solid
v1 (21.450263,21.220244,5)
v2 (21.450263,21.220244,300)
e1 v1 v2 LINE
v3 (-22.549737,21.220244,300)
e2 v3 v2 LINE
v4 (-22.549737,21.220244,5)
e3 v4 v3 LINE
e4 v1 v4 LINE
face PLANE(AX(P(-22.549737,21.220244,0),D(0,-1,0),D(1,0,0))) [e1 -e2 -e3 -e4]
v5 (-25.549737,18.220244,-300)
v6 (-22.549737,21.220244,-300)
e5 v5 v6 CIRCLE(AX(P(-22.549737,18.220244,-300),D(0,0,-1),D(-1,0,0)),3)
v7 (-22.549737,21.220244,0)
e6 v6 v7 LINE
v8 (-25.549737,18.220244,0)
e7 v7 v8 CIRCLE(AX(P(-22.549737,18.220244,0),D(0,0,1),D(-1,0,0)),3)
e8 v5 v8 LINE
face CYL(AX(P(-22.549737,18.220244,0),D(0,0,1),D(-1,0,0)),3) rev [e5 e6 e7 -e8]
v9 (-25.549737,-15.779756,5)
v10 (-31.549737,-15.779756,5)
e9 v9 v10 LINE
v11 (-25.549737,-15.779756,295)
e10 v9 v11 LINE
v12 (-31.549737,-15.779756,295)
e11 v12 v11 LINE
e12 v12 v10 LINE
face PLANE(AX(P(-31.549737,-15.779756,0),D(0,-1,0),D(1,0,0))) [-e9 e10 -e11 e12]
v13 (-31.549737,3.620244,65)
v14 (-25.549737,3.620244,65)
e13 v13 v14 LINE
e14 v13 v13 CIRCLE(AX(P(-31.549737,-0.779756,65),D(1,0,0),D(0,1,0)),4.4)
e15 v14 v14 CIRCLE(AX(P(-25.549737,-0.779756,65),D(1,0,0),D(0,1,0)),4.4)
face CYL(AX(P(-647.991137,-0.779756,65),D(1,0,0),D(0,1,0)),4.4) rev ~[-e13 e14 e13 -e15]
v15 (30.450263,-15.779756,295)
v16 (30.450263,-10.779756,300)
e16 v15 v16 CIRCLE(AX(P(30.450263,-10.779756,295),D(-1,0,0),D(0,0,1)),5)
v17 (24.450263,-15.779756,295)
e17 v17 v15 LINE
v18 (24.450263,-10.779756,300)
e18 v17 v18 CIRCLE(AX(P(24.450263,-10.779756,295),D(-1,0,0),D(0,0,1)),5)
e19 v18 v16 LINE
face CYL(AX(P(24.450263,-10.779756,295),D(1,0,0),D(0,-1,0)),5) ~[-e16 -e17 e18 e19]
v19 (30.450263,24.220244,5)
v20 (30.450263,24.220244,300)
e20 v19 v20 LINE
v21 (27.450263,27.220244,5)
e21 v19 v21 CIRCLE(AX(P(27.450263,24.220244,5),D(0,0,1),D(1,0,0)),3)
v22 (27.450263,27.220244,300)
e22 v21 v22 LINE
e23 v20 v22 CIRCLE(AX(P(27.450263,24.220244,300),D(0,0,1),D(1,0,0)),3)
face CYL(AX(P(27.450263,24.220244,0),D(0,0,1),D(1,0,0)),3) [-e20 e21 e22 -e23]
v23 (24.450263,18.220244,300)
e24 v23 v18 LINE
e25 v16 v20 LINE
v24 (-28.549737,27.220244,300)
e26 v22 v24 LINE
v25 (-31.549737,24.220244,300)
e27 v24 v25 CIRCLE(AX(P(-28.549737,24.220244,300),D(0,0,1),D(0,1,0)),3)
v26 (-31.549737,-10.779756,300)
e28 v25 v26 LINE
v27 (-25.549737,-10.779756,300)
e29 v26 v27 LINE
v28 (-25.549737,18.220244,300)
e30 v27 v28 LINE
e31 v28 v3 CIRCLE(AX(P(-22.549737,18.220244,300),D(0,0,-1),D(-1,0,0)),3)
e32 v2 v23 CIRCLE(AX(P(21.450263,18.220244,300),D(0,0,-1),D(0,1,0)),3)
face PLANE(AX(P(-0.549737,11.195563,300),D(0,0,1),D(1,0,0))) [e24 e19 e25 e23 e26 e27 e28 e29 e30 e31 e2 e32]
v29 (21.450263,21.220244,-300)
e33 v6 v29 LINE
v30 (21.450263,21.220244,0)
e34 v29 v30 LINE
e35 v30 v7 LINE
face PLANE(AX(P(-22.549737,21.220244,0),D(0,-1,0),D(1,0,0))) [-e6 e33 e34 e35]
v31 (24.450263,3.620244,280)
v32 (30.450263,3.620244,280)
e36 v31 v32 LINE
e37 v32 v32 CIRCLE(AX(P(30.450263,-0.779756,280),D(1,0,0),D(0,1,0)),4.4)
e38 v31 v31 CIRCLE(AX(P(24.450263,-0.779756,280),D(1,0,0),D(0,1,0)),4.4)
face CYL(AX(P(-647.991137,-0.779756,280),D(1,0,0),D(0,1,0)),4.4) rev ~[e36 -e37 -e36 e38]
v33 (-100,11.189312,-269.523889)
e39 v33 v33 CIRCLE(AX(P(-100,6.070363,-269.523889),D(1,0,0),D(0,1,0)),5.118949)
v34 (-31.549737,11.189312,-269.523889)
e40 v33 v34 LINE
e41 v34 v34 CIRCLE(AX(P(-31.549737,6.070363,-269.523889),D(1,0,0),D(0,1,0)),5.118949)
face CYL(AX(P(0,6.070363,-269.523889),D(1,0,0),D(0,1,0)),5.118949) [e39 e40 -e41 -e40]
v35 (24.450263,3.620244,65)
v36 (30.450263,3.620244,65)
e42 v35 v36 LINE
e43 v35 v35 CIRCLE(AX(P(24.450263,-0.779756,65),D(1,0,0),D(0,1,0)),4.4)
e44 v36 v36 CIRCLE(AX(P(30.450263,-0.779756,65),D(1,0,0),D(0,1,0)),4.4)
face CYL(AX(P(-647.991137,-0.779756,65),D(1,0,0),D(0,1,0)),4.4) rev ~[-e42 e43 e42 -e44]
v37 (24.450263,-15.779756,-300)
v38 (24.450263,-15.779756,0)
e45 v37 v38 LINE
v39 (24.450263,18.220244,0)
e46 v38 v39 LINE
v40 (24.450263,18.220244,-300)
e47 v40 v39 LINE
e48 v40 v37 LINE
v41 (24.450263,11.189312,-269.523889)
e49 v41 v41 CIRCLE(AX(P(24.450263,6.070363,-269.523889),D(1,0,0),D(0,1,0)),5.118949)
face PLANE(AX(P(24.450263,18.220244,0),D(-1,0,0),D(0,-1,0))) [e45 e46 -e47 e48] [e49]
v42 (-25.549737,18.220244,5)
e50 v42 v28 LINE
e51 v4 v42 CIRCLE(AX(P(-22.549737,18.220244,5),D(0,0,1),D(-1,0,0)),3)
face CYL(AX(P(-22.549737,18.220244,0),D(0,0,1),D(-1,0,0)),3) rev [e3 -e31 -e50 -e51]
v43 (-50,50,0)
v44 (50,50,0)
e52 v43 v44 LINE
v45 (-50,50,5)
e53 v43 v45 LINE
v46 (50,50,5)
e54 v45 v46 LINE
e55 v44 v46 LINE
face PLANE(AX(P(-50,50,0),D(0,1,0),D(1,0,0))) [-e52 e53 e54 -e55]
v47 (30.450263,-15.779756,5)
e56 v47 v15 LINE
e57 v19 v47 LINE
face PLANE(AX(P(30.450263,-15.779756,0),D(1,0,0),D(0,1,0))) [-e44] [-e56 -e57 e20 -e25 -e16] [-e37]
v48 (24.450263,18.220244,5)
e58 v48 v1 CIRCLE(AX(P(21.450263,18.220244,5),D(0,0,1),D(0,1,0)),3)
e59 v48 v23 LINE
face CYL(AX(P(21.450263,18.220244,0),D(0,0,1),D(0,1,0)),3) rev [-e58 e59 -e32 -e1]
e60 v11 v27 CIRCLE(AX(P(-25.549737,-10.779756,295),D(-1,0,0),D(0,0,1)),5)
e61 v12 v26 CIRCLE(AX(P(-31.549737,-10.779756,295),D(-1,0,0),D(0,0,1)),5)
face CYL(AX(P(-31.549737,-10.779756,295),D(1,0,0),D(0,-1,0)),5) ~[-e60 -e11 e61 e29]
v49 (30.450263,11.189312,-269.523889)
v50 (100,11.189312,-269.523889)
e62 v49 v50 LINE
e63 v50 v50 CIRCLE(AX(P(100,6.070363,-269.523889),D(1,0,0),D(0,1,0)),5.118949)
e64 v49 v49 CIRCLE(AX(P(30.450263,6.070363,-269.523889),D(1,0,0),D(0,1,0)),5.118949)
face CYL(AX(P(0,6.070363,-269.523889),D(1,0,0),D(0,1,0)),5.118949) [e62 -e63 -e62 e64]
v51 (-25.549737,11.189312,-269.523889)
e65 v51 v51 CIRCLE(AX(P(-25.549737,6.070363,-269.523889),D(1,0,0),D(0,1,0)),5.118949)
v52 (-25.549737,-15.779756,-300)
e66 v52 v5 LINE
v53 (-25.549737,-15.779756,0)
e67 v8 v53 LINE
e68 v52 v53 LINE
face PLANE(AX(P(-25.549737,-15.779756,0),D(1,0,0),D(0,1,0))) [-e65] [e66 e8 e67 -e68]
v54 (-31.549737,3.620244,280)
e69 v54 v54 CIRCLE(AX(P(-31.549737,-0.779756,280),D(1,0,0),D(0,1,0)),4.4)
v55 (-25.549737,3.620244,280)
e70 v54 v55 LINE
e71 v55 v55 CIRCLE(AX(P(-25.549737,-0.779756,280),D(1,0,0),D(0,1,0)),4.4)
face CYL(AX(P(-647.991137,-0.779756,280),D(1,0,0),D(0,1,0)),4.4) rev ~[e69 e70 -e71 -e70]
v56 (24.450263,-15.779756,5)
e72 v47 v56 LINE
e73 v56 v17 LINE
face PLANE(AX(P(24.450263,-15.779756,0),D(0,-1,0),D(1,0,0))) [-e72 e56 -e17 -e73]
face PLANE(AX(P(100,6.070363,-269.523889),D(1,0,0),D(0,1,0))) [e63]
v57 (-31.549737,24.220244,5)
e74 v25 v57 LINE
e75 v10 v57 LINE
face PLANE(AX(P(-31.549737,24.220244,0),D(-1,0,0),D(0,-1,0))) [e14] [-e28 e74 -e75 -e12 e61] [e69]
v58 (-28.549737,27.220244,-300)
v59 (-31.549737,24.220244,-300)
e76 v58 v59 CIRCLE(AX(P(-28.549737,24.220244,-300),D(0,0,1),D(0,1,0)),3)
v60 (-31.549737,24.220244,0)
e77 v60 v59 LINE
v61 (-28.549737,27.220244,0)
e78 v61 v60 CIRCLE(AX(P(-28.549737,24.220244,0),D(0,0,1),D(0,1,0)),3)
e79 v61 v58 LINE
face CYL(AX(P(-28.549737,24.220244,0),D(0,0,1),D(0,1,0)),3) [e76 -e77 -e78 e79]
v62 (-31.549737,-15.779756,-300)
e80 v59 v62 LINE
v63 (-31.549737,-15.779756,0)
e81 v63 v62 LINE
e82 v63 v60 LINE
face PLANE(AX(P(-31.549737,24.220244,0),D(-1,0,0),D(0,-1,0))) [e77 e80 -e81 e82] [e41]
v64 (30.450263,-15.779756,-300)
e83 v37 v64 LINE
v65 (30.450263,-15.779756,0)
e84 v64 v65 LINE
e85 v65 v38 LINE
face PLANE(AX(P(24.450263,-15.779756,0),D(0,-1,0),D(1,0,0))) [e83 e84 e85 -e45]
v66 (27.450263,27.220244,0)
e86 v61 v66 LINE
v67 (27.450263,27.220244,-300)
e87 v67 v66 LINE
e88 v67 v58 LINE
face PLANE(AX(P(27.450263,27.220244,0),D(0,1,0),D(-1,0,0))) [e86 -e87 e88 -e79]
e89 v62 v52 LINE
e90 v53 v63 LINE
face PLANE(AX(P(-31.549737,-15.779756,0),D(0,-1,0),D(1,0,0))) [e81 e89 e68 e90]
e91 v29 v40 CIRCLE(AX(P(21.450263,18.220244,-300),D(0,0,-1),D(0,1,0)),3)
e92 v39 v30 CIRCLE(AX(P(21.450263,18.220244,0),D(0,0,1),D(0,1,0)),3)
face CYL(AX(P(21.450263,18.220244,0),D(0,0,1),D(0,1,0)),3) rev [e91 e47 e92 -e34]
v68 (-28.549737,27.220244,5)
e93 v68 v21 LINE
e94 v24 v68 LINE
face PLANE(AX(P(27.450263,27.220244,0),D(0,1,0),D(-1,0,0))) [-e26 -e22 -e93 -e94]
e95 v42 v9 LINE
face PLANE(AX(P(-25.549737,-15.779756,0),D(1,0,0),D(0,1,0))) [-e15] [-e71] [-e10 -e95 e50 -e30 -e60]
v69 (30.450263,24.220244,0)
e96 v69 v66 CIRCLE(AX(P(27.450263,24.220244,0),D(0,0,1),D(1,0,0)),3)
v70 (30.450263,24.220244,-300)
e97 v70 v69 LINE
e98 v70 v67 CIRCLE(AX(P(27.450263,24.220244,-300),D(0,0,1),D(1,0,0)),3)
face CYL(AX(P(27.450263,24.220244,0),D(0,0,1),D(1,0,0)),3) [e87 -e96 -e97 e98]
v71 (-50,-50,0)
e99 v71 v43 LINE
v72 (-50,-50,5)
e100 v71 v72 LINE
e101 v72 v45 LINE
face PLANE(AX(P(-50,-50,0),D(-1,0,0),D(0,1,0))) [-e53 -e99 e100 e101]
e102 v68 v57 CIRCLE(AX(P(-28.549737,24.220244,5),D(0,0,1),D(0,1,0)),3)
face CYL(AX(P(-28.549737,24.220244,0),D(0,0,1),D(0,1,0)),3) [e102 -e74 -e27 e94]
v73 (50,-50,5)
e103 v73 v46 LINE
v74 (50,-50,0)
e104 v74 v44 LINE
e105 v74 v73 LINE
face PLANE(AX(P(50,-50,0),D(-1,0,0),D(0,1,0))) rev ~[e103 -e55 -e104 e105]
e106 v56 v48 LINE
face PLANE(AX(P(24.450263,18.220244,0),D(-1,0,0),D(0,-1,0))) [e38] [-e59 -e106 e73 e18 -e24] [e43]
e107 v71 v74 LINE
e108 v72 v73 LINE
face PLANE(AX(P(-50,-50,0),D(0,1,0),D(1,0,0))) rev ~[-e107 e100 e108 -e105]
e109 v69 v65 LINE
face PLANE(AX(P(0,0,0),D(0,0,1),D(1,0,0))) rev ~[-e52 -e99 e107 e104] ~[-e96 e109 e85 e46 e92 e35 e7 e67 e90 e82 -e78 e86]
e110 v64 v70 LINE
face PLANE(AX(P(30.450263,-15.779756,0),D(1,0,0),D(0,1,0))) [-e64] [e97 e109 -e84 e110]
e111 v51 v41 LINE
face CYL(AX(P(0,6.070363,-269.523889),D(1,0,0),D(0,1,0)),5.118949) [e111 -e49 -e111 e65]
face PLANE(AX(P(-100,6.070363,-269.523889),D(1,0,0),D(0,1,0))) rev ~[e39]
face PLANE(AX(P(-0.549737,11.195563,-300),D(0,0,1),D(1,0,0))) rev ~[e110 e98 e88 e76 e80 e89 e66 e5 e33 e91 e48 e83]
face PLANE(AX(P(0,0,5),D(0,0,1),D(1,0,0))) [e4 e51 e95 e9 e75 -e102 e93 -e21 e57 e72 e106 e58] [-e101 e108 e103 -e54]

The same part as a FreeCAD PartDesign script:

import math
import FreeCAD as App
import Part
import Sketcher
from FreeCAD import Vector


def edges_at(feature, points):
    """Names of the edges that pass closest to the given points."""
    edges = feature.Shape.Edges
    near = lambda p: min(range(len(edges)), key=lambda i: edges[i].distToShape(Part.Vertex(*p))[0])
    return sorted({f"Edge{near(p) + 1}" for p in points})


def add_polygon(sketch, points):
    """Adds a closed chain of lines whose ends are joined by coincident constraints."""
    first, n = sketch.GeometryCount, len(points)
    for a, b in zip(points, points[1:] + points[:1]):
        sketch.addGeometry(Part.LineSegment(App.Vector(*a, 0), App.Vector(*b, 0)), False)
    for i in range(n):
        sketch.addConstraint(Sketcher.Constraint("Coincident", first + i, 2, first + (i + 1) % n, 1))

doc = App.newDocument("Part")
body = doc.addObject("PartDesign::Body", "Body")

# Sketch on XY plane
sketch1 = body.newObject("Sketcher::SketchObject", "Sketch")
sketch1.AttachmentSupport = (doc.getObject("XY_Plane"), [""])
sketch1.MapMode = "FlatFace"
sketch1.addGeometry([
    Part.LineSegment(Vector(-31.5, -15.8, 0), Vector(-25.5, -15.8, 0)),  # 0
    Part.LineSegment(Vector(-25.5, -15.8, 0), Vector(-25.5, 18.2, 0)),  # 1
    Part.ArcOfCircle(Part.Circle(Vector(-22.5, 18.2, 0), Vector(0, 0, 1), 3), math.radians(90), math.radians(180)),  # 2
    Part.LineSegment(Vector(-22.5, 21.2, 0), Vector(21.5, 21.2, 0)),  # 3
    Part.ArcOfCircle(Part.Circle(Vector(21.5, 18.2, 0), Vector(0, 0, 1), 3), math.radians(0), math.radians(90)),  # 4
    Part.LineSegment(Vector(24.5, 18.2, 0), Vector(24.5, -15.8, 0)),  # 5
    Part.LineSegment(Vector(24.5, -15.8, 0), Vector(30.5, -15.8, 0)),  # 6
    Part.LineSegment(Vector(30.5, -15.8, 0), Vector(30.5, 24.2, 0)),  # 7
    Part.ArcOfCircle(Part.Circle(Vector(27.5, 24.2, 0), Vector(0, 0, 1), 3), math.radians(0), math.radians(90)),  # 8
    Part.LineSegment(Vector(27.5, 27.2, 0), Vector(-28.5, 27.2, 0)),  # 9
    Part.ArcOfCircle(Part.Circle(Vector(-28.5, 24.2, 0), Vector(0, 0, 1), 3), math.radians(90), math.radians(180)),  # 10
    Part.LineSegment(Vector(-31.5, 24.2, 0), Vector(-31.5, -15.8, 0)),  # 11
], False)
sketch1.addConstraint([
    Sketcher.Constraint("Coincident", 0, 2, 1, 1),
    Sketcher.Constraint("Tangent", 1, 2, 2, 2),
    Sketcher.Constraint("Tangent", 2, 1, 3, 1),
    Sketcher.Constraint("Tangent", 3, 2, 4, 2),
    Sketcher.Constraint("Tangent", 4, 1, 5, 1),
    Sketcher.Constraint("Coincident", 5, 2, 6, 1),
    Sketcher.Constraint("Coincident", 6, 2, 7, 1),
    Sketcher.Constraint("Tangent", 7, 2, 8, 1),
    Sketcher.Constraint("Tangent", 8, 2, 9, 1),
    Sketcher.Constraint("Tangent", 9, 2, 10, 1),
    Sketcher.Constraint("Tangent", 10, 2, 11, 1),
    Sketcher.Constraint("Coincident", 11, 2, 0, 1),
    Sketcher.Constraint("Horizontal", 0),
    Sketcher.Constraint("Vertical", 1),
    Sketcher.Constraint("Horizontal", 3),
    Sketcher.Constraint("Vertical", 5),
    Sketcher.Constraint("Horizontal", 6),
    Sketcher.Constraint("Vertical", 7),
    Sketcher.Constraint("Horizontal", 9),
    Sketcher.Constraint("Vertical", 11),
    Sketcher.Constraint("Equal", 2, 4),
    Sketcher.Constraint("Equal", 4, 8),
    Sketcher.Constraint("Equal", 8, 10),
    Sketcher.Constraint("Horizontal", 0, 2, 5, 2),
    Sketcher.Constraint("Equal", 0, 6),
    Sketcher.Constraint("Radius", 2, 3.0),
    Sketcher.Constraint("DistanceX", 0, 1, 0, 2, 6.0),
    Sketcher.Constraint("DistanceX", 3, 1, 3, 2, 44.0),
    Sketcher.Constraint("DistanceY", 1, 1, 1, 2, 34.0),
    Sketcher.Constraint("DistanceY", 7, 1, 7, 2, 40.0),
    Sketcher.Constraint("DistanceX", 2, 3, -1, 1, 22.549737),
    Sketcher.Constraint("DistanceY", -1, 1, 2, 3, 18.220244),
])
pad1 = body.newObject("PartDesign::Pad", "Pad")
pad1.Profile = sketch1
pad1.Length = 600
pad1.Midplane = True

# Sketch on XY plane
sketch2 = body.newObject("Sketcher::SketchObject", "Sketch001")
sketch2.AttachmentSupport = (doc.getObject("XY_Plane"), [""])
sketch2.MapMode = "FlatFace"
add_polygon(sketch2, [(-50, 50), (-50, -50), (50, -50), (50, 50)])  # lines 0-3
sketch2.addConstraint([
    Sketcher.Constraint("Vertical", 0),
    Sketcher.Constraint("Horizontal", 1),
    Sketcher.Constraint("Vertical", 2),
    Sketcher.Constraint("Horizontal", 3),
    Sketcher.Constraint("Symmetric", 0, 2, 2, 2, -1, 1),
    Sketcher.Constraint("Equal", 3, 0),
    Sketcher.Constraint("DistanceX", 1, 1, 1, 2, 100.0),
])
pad2 = body.newObject("PartDesign::Pad", "Pad001")
pad2.Profile = sketch2
pad2.Length = 5

# Sketch on YZ plane
sketch3 = body.newObject("Sketcher::SketchObject", "Sketch002")
sketch3.AttachmentSupport = (doc.getObject("YZ_Plane"), [""])
sketch3.MapMode = "FlatFace"
sketch3.AttachmentOffset = App.Placement(Vector(0, 0, -31.549737), App.Rotation())
sketch3.addGeometry([
    Part.Circle(Vector(-0.8, 280, 0), Vector(0, 0, 1), 4.4),
    Part.Circle(Vector(-0.8, 65, 0), Vector(0, 0, 1), 4.4),
], False)
sketch3.addConstraint([
    Sketcher.Constraint("Equal", 0, 1),
    Sketcher.Constraint("Vertical", 0, 3, 1, 3),
    Sketcher.Constraint("Diameter", 0, 8.8),
    Sketcher.Constraint("DistanceY", -1, 1, 0, 3, 280.0),
    Sketcher.Constraint("DistanceY", -1, 1, 1, 3, 65.0),
    Sketcher.Constraint("DistanceX", 0, 3, -1, 1, 0.779756),
])
doc.recompute()
hole = body.newObject("PartDesign::Hole", "Hole")
hole.Profile = sketch3
hole.ThreadType = "None"
hole.Diameter = 8.8
hole.DepthType = "ThroughAll"
hole.Reversed = True
doc.recompute()

fillet = body.newObject("PartDesign::Fillet", "Fillet")
fillet.Base = (hole, edges_at(hole, [(-28.55, -15.78, 300), (27.45, -15.78, 300)]))
fillet.Radius = 5

# Sketch on YZ plane
sketch4 = body.newObject("Sketcher::SketchObject", "Sketch003")
sketch4.AttachmentSupport = (doc.getObject("YZ_Plane"), [""])
sketch4.MapMode = "FlatFace"
sketch4.addGeometry(Part.Circle(Vector(6, -270, 0), Vector(0, 0, 1), 5), False)
sketch4.addConstraint([
    Sketcher.Constraint("Diameter", 0, 10.237897),
    Sketcher.Constraint("DistanceY", 0, 3, -1, 1, 269.523889),
    Sketcher.Constraint("DistanceX", -1, 1, 0, 3, 6.070363),
])
pad3 = body.newObject("PartDesign::Pad", "Pad002")
pad3.Profile = sketch4
pad3.Length = 200
pad3.Midplane = True

doc.recompute()
